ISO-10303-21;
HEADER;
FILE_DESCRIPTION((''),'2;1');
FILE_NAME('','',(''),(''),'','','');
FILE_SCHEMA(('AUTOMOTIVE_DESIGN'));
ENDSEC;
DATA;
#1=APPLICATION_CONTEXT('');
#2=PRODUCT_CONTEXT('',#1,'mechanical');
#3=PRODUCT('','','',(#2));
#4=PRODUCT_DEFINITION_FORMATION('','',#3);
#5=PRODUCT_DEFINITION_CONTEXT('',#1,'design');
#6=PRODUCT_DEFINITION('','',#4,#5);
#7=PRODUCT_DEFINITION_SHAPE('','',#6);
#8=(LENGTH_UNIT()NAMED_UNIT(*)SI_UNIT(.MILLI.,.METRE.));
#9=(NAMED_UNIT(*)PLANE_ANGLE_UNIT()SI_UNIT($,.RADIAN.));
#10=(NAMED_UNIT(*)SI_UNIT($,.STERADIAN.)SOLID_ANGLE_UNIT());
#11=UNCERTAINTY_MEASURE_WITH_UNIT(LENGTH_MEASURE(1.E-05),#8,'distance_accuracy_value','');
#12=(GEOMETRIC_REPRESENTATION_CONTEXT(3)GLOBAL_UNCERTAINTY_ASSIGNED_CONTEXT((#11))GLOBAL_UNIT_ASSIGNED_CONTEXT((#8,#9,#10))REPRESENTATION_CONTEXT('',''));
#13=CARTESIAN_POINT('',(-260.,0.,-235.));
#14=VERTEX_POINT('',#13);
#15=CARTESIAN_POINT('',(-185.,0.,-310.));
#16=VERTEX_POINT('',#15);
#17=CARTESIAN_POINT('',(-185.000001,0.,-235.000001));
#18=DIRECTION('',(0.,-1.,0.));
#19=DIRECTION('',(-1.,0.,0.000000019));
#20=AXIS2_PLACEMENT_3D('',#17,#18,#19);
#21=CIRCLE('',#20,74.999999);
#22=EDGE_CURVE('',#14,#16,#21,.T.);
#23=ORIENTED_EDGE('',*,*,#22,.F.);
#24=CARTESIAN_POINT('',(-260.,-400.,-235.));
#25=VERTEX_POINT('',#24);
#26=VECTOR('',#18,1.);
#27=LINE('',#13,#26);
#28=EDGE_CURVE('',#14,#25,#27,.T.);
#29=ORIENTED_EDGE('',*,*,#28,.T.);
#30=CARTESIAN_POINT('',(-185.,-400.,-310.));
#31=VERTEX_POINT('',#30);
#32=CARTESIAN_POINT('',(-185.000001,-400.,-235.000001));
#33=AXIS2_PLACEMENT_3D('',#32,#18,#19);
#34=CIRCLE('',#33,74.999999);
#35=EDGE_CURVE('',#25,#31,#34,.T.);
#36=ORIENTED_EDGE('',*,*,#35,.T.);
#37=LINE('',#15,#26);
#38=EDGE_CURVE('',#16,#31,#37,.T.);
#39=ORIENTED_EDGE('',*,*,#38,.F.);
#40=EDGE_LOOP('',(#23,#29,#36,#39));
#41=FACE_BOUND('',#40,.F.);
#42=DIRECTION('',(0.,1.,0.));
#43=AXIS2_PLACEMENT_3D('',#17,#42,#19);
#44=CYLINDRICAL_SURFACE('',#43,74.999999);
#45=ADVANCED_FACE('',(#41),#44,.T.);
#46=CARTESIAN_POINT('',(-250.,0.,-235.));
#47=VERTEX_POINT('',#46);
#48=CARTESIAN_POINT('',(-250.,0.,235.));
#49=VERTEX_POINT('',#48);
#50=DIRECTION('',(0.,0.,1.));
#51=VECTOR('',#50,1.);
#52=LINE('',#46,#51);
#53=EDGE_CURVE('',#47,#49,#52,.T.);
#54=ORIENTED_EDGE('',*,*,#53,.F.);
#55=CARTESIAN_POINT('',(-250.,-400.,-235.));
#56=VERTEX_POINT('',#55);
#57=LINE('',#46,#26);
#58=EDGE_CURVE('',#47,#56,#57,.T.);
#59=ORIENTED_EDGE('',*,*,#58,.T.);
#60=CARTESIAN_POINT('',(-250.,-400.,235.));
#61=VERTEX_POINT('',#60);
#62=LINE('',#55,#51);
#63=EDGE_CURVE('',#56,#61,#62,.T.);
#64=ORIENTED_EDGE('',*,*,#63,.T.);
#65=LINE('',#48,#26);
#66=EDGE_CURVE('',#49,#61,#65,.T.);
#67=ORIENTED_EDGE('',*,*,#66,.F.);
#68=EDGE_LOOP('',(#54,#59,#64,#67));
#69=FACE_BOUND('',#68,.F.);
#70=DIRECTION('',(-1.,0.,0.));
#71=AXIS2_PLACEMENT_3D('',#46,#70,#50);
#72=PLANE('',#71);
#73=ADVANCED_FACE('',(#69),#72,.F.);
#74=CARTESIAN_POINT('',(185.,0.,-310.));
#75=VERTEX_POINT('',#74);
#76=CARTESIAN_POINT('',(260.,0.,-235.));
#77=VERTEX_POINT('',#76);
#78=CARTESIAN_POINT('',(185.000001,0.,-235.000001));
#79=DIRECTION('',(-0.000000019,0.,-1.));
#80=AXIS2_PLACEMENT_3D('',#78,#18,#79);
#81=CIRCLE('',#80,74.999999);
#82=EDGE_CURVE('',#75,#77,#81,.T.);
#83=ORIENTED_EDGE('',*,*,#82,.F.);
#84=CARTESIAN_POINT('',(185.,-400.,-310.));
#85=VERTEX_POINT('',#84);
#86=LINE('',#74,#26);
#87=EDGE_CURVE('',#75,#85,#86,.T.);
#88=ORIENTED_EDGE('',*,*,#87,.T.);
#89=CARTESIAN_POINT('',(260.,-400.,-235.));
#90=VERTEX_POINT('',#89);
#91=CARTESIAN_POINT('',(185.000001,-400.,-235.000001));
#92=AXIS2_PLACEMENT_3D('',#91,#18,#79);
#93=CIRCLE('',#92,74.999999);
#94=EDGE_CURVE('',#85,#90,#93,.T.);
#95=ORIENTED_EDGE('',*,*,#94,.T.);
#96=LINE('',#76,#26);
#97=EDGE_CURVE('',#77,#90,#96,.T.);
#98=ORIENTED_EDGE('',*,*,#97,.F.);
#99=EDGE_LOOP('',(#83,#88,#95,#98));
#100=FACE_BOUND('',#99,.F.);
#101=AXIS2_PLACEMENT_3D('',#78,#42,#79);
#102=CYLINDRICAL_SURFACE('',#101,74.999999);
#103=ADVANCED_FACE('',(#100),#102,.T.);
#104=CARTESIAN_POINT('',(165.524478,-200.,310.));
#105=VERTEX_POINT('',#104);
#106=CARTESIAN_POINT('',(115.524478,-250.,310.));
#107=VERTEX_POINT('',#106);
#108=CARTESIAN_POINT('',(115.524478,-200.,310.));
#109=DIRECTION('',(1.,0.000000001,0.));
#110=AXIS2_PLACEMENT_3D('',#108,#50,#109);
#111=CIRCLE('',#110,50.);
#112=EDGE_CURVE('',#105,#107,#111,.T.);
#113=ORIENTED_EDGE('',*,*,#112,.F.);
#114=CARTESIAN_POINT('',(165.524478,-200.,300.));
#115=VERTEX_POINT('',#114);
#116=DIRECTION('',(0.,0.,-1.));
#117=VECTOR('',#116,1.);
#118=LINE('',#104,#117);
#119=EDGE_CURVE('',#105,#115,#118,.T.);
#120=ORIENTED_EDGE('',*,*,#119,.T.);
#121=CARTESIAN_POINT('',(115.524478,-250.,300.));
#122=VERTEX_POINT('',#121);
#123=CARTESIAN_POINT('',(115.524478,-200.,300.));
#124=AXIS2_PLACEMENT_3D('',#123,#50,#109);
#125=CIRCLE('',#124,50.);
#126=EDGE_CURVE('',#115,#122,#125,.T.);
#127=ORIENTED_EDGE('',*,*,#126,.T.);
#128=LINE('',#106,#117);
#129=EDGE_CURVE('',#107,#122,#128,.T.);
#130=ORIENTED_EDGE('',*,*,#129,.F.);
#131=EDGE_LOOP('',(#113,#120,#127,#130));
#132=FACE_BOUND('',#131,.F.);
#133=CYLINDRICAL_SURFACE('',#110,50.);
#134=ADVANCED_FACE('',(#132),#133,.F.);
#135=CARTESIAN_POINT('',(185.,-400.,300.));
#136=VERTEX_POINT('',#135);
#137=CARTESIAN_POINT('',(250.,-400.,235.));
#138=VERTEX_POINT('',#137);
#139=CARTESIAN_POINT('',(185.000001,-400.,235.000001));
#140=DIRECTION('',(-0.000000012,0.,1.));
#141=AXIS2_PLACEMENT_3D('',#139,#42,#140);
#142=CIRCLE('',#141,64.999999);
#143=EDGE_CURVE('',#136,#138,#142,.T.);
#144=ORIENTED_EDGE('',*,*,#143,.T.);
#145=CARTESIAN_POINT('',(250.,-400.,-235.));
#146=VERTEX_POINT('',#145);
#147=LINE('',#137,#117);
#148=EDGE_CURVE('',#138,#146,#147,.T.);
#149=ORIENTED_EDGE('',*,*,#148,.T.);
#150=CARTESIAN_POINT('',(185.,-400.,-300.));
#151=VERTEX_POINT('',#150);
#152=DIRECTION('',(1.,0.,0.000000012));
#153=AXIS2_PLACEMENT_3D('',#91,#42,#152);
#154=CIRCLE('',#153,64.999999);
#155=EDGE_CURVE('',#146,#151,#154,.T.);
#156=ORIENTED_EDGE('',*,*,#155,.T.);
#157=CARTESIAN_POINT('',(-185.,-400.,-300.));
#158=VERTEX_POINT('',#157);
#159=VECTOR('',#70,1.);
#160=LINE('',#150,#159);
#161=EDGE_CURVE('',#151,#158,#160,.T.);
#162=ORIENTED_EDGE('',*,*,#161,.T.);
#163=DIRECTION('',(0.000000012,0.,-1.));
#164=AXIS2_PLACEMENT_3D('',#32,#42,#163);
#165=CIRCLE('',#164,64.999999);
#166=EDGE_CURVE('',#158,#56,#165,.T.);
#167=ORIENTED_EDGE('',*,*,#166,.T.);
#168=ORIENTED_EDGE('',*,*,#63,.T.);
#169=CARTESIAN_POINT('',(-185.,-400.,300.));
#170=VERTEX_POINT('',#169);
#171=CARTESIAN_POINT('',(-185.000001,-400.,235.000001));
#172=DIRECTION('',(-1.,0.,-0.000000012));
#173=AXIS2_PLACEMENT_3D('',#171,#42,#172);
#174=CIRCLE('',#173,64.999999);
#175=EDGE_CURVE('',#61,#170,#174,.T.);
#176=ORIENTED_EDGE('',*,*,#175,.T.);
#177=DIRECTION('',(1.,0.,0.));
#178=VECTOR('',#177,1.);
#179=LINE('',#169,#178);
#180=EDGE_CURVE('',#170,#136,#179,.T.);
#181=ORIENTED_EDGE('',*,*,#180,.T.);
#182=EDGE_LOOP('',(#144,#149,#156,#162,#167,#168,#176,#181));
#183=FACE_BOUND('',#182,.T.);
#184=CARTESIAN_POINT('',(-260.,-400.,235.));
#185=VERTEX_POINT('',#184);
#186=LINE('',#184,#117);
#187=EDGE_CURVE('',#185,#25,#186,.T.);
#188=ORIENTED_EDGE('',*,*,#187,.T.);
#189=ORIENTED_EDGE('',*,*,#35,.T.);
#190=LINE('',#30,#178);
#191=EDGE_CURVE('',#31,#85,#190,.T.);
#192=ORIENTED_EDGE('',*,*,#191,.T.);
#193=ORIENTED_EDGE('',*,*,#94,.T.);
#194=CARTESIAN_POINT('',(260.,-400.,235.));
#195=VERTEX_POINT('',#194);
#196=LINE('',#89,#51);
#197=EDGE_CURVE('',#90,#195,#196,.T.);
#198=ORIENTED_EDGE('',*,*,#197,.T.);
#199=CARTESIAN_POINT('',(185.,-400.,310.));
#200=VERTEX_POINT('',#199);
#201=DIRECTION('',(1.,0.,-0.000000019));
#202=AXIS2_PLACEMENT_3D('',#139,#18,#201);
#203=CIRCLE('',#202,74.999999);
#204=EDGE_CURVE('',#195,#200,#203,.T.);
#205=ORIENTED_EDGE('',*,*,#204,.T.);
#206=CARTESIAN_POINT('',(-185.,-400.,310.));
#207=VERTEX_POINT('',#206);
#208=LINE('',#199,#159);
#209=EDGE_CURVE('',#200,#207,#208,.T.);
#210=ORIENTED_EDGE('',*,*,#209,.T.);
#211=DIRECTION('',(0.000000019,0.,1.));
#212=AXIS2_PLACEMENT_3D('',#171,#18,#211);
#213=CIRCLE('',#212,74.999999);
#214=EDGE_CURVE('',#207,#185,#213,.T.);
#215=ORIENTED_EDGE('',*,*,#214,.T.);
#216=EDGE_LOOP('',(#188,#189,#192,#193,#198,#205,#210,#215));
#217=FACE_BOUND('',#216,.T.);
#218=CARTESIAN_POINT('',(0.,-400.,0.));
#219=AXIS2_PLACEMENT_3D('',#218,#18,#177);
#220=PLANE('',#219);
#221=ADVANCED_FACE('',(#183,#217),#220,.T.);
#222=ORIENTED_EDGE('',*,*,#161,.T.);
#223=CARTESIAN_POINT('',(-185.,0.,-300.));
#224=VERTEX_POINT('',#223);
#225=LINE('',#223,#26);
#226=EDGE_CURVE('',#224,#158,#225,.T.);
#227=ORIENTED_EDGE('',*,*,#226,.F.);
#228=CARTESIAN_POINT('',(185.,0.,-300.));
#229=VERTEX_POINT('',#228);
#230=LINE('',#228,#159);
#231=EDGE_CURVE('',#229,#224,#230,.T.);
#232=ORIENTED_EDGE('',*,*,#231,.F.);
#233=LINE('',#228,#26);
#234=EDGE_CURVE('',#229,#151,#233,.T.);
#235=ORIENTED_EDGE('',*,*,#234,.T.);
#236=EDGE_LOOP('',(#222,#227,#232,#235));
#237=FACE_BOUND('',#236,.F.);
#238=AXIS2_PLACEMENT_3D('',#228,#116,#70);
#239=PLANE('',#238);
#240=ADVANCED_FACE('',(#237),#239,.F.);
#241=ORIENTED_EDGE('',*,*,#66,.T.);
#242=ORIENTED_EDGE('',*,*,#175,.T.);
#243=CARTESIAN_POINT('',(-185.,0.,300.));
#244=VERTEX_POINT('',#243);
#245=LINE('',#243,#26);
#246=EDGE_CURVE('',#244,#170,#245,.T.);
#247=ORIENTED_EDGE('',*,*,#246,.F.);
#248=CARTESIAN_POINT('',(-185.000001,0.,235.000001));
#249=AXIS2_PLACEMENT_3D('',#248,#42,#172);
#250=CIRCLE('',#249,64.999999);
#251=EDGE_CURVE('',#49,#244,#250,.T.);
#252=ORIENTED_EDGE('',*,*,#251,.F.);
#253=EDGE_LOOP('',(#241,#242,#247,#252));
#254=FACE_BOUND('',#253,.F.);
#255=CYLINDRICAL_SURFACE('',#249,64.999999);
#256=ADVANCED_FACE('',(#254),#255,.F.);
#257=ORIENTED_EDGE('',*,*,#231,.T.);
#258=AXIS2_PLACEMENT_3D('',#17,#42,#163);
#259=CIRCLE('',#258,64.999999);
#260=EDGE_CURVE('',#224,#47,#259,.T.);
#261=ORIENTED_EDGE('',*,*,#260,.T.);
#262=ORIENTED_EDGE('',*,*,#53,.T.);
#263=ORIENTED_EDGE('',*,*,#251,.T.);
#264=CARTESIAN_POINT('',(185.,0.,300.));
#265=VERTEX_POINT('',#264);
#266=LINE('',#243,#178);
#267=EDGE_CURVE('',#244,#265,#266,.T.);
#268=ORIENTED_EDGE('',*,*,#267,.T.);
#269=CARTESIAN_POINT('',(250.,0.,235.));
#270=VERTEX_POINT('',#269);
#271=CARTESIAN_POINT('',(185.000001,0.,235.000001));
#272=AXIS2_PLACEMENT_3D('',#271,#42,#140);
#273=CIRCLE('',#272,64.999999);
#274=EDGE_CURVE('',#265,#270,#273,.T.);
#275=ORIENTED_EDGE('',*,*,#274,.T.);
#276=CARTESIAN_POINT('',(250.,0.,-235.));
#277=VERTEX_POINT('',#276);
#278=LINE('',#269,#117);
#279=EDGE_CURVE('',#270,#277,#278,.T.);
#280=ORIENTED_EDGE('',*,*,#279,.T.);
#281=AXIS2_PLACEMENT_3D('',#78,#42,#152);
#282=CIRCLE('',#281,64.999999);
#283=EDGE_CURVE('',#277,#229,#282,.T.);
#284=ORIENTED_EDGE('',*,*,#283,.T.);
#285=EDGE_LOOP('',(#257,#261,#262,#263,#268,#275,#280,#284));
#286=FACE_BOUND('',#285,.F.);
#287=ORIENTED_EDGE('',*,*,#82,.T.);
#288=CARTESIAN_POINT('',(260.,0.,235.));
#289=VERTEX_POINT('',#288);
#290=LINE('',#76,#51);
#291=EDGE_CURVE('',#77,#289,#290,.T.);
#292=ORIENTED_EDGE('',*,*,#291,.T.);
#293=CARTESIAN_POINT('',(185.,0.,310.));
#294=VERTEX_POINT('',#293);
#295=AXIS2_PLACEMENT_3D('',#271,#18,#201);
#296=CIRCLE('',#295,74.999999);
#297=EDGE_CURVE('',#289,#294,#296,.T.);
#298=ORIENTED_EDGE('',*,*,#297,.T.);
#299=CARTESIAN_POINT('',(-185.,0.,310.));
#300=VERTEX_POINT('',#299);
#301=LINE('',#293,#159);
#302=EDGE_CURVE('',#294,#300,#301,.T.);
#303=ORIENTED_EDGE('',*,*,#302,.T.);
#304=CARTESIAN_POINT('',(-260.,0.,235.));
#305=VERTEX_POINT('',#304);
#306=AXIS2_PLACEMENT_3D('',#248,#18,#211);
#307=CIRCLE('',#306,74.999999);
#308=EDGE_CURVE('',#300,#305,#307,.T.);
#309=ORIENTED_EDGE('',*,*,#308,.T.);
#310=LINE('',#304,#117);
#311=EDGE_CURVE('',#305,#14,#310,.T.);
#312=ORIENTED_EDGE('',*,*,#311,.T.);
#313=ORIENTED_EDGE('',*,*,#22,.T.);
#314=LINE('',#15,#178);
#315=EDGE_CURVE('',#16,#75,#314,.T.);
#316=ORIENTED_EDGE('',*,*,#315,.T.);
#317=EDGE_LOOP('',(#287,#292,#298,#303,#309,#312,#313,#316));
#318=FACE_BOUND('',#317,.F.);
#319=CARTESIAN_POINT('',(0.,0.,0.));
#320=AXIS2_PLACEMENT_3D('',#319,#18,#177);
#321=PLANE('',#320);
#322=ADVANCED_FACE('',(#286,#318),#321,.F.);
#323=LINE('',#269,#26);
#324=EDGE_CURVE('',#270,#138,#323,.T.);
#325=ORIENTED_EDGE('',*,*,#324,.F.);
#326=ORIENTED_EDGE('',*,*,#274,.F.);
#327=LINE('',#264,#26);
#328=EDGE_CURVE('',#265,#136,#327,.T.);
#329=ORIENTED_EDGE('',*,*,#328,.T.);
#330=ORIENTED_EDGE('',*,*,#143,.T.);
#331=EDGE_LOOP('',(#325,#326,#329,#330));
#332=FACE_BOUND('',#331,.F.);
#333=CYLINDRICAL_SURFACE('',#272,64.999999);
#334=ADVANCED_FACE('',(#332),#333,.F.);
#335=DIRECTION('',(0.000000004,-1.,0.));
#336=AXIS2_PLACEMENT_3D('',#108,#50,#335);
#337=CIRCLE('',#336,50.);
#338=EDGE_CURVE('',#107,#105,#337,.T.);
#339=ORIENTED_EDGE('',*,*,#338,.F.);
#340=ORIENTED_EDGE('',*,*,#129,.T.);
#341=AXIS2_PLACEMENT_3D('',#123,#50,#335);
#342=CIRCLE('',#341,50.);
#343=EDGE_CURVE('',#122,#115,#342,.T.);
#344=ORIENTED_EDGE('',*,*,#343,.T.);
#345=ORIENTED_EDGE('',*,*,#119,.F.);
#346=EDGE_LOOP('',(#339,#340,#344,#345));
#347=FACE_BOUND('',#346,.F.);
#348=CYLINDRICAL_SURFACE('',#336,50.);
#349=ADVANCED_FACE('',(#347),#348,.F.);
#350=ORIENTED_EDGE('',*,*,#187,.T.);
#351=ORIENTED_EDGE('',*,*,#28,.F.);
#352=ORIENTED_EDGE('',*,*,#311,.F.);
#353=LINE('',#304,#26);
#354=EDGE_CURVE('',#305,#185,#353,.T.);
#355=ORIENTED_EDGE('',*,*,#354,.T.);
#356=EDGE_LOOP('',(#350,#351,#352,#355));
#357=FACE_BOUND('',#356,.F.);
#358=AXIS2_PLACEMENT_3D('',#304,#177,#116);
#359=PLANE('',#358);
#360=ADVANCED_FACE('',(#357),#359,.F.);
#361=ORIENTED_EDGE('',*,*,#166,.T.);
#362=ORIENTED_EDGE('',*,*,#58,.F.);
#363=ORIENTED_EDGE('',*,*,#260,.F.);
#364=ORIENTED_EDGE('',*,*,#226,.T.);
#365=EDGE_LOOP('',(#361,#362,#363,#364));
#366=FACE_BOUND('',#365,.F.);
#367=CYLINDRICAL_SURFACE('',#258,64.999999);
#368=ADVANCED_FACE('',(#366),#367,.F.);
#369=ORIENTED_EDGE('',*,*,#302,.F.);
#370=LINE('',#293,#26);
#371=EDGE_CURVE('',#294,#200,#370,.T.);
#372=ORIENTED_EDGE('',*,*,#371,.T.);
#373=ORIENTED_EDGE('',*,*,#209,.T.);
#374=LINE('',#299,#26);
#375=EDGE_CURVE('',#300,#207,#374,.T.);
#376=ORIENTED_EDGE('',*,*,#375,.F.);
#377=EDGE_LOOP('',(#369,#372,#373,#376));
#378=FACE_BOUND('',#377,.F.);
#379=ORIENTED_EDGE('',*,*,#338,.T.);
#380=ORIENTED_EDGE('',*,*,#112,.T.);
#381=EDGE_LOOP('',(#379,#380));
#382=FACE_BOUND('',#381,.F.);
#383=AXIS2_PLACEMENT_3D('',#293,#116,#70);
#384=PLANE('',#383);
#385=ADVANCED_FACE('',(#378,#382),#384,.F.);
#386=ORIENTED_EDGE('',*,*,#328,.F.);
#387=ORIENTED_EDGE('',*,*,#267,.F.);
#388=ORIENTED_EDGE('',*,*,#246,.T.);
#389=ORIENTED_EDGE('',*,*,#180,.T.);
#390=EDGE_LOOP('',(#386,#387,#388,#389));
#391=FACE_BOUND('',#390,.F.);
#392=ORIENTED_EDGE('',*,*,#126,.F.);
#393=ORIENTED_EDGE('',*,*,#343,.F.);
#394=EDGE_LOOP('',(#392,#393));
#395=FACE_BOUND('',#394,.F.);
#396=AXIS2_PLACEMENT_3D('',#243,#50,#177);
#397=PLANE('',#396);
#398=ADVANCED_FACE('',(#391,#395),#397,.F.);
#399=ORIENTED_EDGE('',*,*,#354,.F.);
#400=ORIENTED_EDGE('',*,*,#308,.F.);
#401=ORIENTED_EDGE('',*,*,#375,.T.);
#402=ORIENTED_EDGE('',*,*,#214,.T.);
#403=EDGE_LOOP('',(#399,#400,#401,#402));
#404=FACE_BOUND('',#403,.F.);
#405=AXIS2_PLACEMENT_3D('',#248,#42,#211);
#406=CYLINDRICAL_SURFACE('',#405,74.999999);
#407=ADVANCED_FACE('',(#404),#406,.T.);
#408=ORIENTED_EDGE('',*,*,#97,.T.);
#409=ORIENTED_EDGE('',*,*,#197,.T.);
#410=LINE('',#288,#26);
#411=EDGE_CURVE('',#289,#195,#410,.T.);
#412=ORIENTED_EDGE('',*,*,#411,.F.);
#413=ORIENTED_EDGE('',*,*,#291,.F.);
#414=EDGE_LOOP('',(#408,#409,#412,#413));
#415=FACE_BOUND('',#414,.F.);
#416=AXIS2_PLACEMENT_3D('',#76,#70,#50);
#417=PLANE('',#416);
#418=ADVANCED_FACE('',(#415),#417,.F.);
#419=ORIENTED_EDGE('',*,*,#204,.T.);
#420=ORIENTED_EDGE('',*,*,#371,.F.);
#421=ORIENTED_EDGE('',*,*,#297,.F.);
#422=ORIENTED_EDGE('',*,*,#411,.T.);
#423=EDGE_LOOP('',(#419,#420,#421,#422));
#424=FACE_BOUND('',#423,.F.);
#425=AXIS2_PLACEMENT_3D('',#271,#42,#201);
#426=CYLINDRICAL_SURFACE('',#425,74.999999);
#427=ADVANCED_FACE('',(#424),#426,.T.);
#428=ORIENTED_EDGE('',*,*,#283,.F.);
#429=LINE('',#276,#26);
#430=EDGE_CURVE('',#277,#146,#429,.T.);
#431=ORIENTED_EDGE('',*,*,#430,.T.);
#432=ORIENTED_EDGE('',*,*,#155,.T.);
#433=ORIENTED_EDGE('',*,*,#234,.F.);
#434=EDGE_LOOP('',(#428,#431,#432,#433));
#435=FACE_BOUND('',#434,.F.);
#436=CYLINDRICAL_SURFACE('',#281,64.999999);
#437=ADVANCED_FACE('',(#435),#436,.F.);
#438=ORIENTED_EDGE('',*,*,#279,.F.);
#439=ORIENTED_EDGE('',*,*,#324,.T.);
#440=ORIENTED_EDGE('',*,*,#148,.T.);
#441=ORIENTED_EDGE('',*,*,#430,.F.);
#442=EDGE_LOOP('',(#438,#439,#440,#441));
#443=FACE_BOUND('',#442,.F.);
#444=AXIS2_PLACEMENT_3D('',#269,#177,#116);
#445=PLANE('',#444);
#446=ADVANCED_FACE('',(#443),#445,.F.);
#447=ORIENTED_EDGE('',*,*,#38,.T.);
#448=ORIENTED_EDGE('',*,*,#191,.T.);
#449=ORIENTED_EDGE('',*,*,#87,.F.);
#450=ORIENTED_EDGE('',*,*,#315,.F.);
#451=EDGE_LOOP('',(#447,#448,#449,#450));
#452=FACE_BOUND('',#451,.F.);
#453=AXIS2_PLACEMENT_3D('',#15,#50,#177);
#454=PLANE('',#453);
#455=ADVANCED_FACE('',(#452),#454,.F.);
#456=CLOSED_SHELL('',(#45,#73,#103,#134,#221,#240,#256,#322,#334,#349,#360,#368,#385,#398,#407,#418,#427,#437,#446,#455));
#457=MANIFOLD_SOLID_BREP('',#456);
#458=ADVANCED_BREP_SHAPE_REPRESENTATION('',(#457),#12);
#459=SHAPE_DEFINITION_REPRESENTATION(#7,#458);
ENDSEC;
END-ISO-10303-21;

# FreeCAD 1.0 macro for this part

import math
import FreeCAD as App
import Part
import Sketcher
from FreeCAD import Vector

doc = App.newDocument("Part")
params = doc.addObject("Spreadsheet::Sheet", "Params")
for row, (alias, value) in enumerate([
    ("sketch1_radius", "74.999999 mm"),
    ("sketch1_radius2", "64.999999 mm"),
    ("sketch1_width", "370 mm"),
    ("sketch1_height", "470 mm"),
    ("pad1_length", "400 mm"),
    ("sketch2_radius", "50 mm"),
    ("pocket1_length", "25 mm"),
], start=1):
    params.set(f"A{row}", alias)
    params.set(f"B{row}", "=" + value)
    params.setAlias(f"B{row}", alias)

body = doc.addObject("PartDesign::Body", "Body")

sketch1 = doc.addObject("Sketcher::SketchObject", "Sketch")
body.addObject(sketch1)
sketch1.AttachmentSupport = (doc.XZ_Plane, [""])
sketch1.MapMode = "FlatFace"
sketch1.addGeometry([
    Part.LineSegment(Vector(260, -235, 0), Vector(260, 235, 0)),
    Part.ArcOfCircle(Part.Circle(Vector(185, 235, 0), Vector(0, 0, 1), 75), math.radians(0), math.radians(90)),
    Part.LineSegment(Vector(185, 310, 0), Vector(-185, 310, 0)),
    Part.ArcOfCircle(Part.Circle(Vector(-185, 235, 0), Vector(0, 0, 1), 75), math.radians(90), math.radians(180)),
    Part.LineSegment(Vector(-260, 235, 0), Vector(-260, -235, 0)),
    Part.ArcOfCircle(Part.Circle(Vector(-185, -235, 0), Vector(0, 0, 1), 75), math.radians(180), math.radians(270)),
    Part.LineSegment(Vector(-185, -310, 0), Vector(185, -310, 0)),
    Part.ArcOfCircle(Part.Circle(Vector(185, -235, 0), Vector(0, 0, 1), 75), math.radians(-90), math.radians(0)),
    Part.LineSegment(Vector(-250, -235, 0), Vector(-250, 235, 0)),
    Part.ArcOfCircle(Part.Circle(Vector(-185, 235, 0), Vector(0, 0, 1), 65), math.radians(90), math.radians(180)),
    Part.LineSegment(Vector(-185, 300, 0), Vector(185, 300, 0)),
    Part.ArcOfCircle(Part.Circle(Vector(185, 235, 0), Vector(0, 0, 1), 65), math.radians(0), math.radians(90)),
    Part.LineSegment(Vector(250, 235, 0), Vector(250, -235, 0)),
    Part.ArcOfCircle(Part.Circle(Vector(185, -235, 0), Vector(0, 0, 1), 65), math.radians(-90), math.radians(0)),
    Part.LineSegment(Vector(185, -300, 0), Vector(-185, -300, 0)),
    Part.ArcOfCircle(Part.Circle(Vector(-185, -235, 0), Vector(0, 0, 1), 65), math.radians(180), math.radians(270)),
], False)
sketch1.addConstraint([
    Sketcher.Constraint("Tangent", 0, 2, 1, 1),
    Sketcher.Constraint("Tangent", 1, 2, 2, 1),
    Sketcher.Constraint("Tangent", 2, 2, 3, 1),
    Sketcher.Constraint("Tangent", 3, 2, 4, 1),
    Sketcher.Constraint("Tangent", 4, 2, 5, 1),
    Sketcher.Constraint("Tangent", 5, 2, 6, 1),
    Sketcher.Constraint("Tangent", 6, 2, 7, 1),
    Sketcher.Constraint("Tangent", 7, 2, 0, 1),
    Sketcher.Constraint("Tangent", 8, 2, 9, 2),
    Sketcher.Constraint("Tangent", 9, 1, 10, 1),
    Sketcher.Constraint("Tangent", 10, 2, 11, 2),
    Sketcher.Constraint("Tangent", 11, 1, 12, 1),
    Sketcher.Constraint("Tangent", 12, 2, 13, 2),
    Sketcher.Constraint("Tangent", 13, 1, 14, 1),
    Sketcher.Constraint("Tangent", 14, 2, 15, 2),
    Sketcher.Constraint("Tangent", 15, 1, 8, 1),
    Sketcher.Constraint("Vertical", 0),
    Sketcher.Constraint("Horizontal", 2),
    Sketcher.Constraint("Vertical", 4),
    Sketcher.Constraint("Horizontal", 6),
    Sketcher.Constraint("Vertical", 8),
    Sketcher.Constraint("Horizontal", 10),
    Sketcher.Constraint("Vertical", 12),
    Sketcher.Constraint("Horizontal", 14),
    Sketcher.Constraint("Coincident", 9, 3, 3, 3),
    Sketcher.Constraint("Coincident", 11, 3, 1, 3),
    Sketcher.Constraint("Coincident", 13, 3, 7, 3),
    Sketcher.Constraint("Equal", 1, 3),
    Sketcher.Constraint("Equal", 3, 5),
    Sketcher.Constraint("Equal", 5, 7),
    Sketcher.Constraint("Equal", 13, 15),
    Sketcher.Constraint("Symmetric", 1, 3, 5, 3, -1, 1),
    Sketcher.Constraint("Radius", 1, 74.999999),
    Sketcher.Constraint("Radius", 9, 64.999999),
    Sketcher.Constraint("DistanceX", 2, 2, 2, 1, 370.0),
    Sketcher.Constraint("DistanceY", 0, 1, 0, 2, 470.0),
])
sketch1.setExpression("Constraints[32]", "Params.sketch1_radius")
sketch1.setExpression("Constraints[33]", "Params.sketch1_radius2")
sketch1.setExpression("Constraints[34]", "Params.sketch1_width")
sketch1.setExpression("Constraints[35]", "Params.sketch1_height")
pad1 = doc.addObject("PartDesign::Pad", "Pad")
body.addObject(pad1)
pad1.Profile = sketch1
pad1.setExpression("Length", "Params.pad1_length")

sketch2 = doc.addObject("Sketcher::SketchObject", "Sketch001")
body.addObject(sketch2)
sketch2.AttachmentSupport = (doc.XY_Plane, [""])
sketch2.MapMode = "FlatFace"
sketch2.AttachmentOffset = App.Placement(Vector(0, 0, 310), App.Rotation())
sketch2.addGeometry([
    Part.ArcOfCircle(Part.Circle(Vector(116, -200, 0), Vector(0, 0, 1), 50), math.radians(0), math.radians(270)),
    Part.ArcOfCircle(Part.Circle(Vector(116, -200, 0), Vector(0, 0, 1), 50), math.radians(-90), math.radians(0)),
], False)
sketch2.addConstraint([
    Sketcher.Constraint("Tangent", 0, 1, 1, 2),
    Sketcher.Constraint("Coincident", 1, 1, 0, 2),
    Sketcher.Constraint("Horizontal", 1, 3, 0, 1),
    Sketcher.Constraint("Vertical", 0, 3, 1, 1),
    Sketcher.Constraint("Radius", 0, 50.0),
    Sketcher.Constraint("DistanceY", 0, 3, -1, 1, 200.0),
    Sketcher.Constraint("DistanceX", -1, 1, 0, 3, 115.524478),
])
sketch2.setExpression("Constraints[4]", "Params.sketch2_radius")
pocket1 = doc.addObject("PartDesign::Pocket", "Pocket")
body.addObject(pocket1)
pocket1.Profile = sketch2
pocket1.setExpression("Length", "Params.pocket1_length")

doc.recompute()
